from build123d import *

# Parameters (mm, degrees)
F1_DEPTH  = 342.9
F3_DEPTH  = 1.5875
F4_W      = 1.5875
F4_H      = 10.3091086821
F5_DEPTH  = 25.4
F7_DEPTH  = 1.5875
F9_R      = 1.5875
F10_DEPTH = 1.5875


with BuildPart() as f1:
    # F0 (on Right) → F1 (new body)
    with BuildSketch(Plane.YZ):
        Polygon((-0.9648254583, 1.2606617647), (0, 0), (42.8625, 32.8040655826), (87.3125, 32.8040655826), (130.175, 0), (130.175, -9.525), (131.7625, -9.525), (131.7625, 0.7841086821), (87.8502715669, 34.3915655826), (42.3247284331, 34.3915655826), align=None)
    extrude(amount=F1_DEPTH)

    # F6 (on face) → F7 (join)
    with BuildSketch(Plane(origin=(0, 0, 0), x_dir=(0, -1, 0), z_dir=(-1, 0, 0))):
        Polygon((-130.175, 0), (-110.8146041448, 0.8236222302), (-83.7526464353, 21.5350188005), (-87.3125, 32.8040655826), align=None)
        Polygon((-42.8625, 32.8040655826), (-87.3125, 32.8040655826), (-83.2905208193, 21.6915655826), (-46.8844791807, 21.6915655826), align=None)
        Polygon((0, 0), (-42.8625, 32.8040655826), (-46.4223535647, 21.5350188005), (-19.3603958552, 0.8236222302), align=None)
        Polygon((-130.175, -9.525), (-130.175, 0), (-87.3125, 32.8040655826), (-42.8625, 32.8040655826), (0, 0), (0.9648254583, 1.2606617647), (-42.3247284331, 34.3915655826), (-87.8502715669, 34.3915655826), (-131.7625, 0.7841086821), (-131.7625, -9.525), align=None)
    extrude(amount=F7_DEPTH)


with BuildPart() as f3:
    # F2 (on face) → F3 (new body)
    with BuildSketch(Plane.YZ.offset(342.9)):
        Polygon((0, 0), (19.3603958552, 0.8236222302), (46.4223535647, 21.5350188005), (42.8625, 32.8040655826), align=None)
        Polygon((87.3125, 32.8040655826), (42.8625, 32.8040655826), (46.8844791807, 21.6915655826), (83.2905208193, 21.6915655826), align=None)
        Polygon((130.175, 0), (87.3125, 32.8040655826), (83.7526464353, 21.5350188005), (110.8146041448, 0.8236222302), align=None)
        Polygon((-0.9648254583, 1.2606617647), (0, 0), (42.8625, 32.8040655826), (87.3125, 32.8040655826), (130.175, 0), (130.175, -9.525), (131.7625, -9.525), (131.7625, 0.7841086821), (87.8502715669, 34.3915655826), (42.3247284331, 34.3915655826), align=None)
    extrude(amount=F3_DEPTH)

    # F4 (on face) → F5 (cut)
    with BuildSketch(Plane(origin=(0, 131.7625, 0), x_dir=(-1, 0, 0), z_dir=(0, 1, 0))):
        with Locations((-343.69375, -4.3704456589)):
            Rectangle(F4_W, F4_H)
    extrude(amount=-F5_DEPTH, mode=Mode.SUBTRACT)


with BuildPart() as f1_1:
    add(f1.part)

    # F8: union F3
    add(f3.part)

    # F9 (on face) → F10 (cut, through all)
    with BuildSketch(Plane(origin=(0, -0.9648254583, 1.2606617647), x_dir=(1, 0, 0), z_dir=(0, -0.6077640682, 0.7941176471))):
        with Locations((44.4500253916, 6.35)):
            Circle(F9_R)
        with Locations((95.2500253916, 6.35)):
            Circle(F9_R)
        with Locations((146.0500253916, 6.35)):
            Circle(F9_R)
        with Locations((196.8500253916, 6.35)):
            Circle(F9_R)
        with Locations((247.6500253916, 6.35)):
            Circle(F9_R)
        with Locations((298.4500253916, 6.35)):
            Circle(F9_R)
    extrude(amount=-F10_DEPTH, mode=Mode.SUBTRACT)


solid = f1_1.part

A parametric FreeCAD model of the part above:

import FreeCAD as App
import Part
import Sketcher
Q = App.Units.Quantity

doc = App.newDocument("Part")
body = doc.addObject("PartDesign::Body", "Body")

sketch1 = body.newObject("Sketcher::SketchObject", "Sketch")
sketch1.AttachmentSupport = (doc.getObject("YZ_Plane"), [""])
sketch1.MapMode = "FlatFace"
sketch1.addGeometry(Part.LineSegment(App.Vector(-1, 1.3, 0), App.Vector(0, 0, 0)), False)
sketch1.addGeometry(Part.LineSegment(App.Vector(0, 0, 0), App.Vector(42.9, 32.8, 0)), False)
sketch1.addGeometry(Part.LineSegment(App.Vector(42.9, 32.8, 0), App.Vector(87.3, 32.8, 0)), False)
sketch1.addGeometry(Part.LineSegment(App.Vector(87.3, 32.8, 0), App.Vector(130.2, 0, 0)), False)
sketch1.addGeometry(Part.LineSegment(App.Vector(130.2, 0, 0), App.Vector(130.2, -9.5, 0)), False)
sketch1.addGeometry(Part.LineSegment(App.Vector(130.2, -9.5, 0), App.Vector(131.8, -9.5, 0)), False)
sketch1.addGeometry(Part.LineSegment(App.Vector(131.8, -9.5, 0), App.Vector(131.8, 0.8, 0)), False)
sketch1.addGeometry(Part.LineSegment(App.Vector(131.8, 0.8, 0), App.Vector(87.9, 34.4, 0)), False)
sketch1.addGeometry(Part.LineSegment(App.Vector(87.9, 34.4, 0), App.Vector(42.3, 34.4, 0)), False)
sketch1.addGeometry(Part.LineSegment(App.Vector(42.3, 34.4, 0), App.Vector(-1, 1.3, 0)), False)
sketch1.addConstraint(Sketcher.Constraint("Coincident", 0, 2, 1, 1))
sketch1.addConstraint(Sketcher.Constraint("Coincident", 1, 2, 2, 1))
sketch1.addConstraint(Sketcher.Constraint("Coincident", 2, 2, 3, 1))
sketch1.addConstraint(Sketcher.Constraint("Coincident", 3, 2, 4, 1))
sketch1.addConstraint(Sketcher.Constraint("Coincident", 4, 2, 5, 1))
sketch1.addConstraint(Sketcher.Constraint("Coincident", 5, 2, 6, 1))
sketch1.addConstraint(Sketcher.Constraint("Coincident", 6, 2, 7, 1))
sketch1.addConstraint(Sketcher.Constraint("Coincident", 7, 2, 8, 1))
sketch1.addConstraint(Sketcher.Constraint("Coincident", 8, 2, 9, 1))
sketch1.addConstraint(Sketcher.Constraint("Coincident", 9, 2, 0, 1))
sketch1.addConstraint(Sketcher.Constraint("Horizontal", 2))
sketch1.addConstraint(Sketcher.Constraint("Vertical", 4))
sketch1.addConstraint(Sketcher.Constraint("Horizontal", 5))
sketch1.addConstraint(Sketcher.Constraint("Vertical", 6))
sketch1.addConstraint(Sketcher.Constraint("Horizontal", 8))
sketch1.addConstraint(Sketcher.Constraint("Coincident", 0, 2, -1, 1))
sketch1.addConstraint(Sketcher.Constraint("PointOnObject", 3, 2, -1))
sketch1.addConstraint(Sketcher.Constraint("Perpendicular", 0, 1))
sketch1.addConstraint(Sketcher.Constraint("Parallel", 3, 7))
sketch1.addConstraint(Sketcher.Constraint("Parallel", 1, 9))
sketch1.addConstraint(Sketcher.Constraint("Equal", 1, 3))
sketch1.addConstraint(Sketcher.Constraint("DistanceX", 2, 1, 2, 2, Q("1.75 in")))
sketch1.addConstraint(Sketcher.Constraint("DistanceX", 1, 2, 5, 2, Q("3.5 in")))
sketch1.addConstraint(Sketcher.Constraint("DistanceX", 5, 1, 5, 2, Q("0.0625 in")))
sketch1.addConstraint(Sketcher.Constraint("DistanceY", 4, 2, 4, 1, Q("0.375 in")))
sketch1.addConstraint(Sketcher.Constraint("Distance", 0, Q("0.0625 in")))
sketch1.addConstraint(Sketcher.Constraint("Distance", 1, Q("2.125 in")))
sketch1.addConstraint(Sketcher.Constraint("DistanceY", 2, 2, 7, 2, Q("0.0625 in")))
sketch1.addConstraint(Sketcher.Constraint("DistanceY", 6, 1, 6, 2, Q("10.309109 mm")))
pad1 = body.newObject("PartDesign::Pad", "Pad")
pad1.Profile = sketch1
pad1.Length = Q("13.5 in")

sketch2 = body.newObject("Sketcher::SketchObject", "Sketch001")
sketch2.AttachmentSupport = (doc.getObject("YZ_Plane"), [""])
sketch2.MapMode = "FlatFace"
sketch2.addGeometry(Part.LineSegment(App.Vector(130.2, 0, 0), App.Vector(110.8, 0.8, 0)), False)
sketch2.addGeometry(Part.LineSegment(App.Vector(110.8, 0.8, 0), App.Vector(83.8, 21.5, 0)), False)
sketch2.addGeometry(Part.LineSegment(App.Vector(83.8, 21.5, 0), App.Vector(87.3, 32.8, 0)), False)
sketch2.addGeometry(Part.LineSegment(App.Vector(87.3, 32.8, 0), App.Vector(83.3, 21.7, 0)), False)
sketch2.addGeometry(Part.LineSegment(App.Vector(83.3, 21.7, 0), App.Vector(46.9, 21.7, 0)), False)
sketch2.addGeometry(Part.LineSegment(App.Vector(46.9, 21.7, 0), App.Vector(42.9, 32.8, 0)), False)
sketch2.addGeometry(Part.LineSegment(App.Vector(42.9, 32.8, 0), App.Vector(46.4, 21.5, 0)), False)
sketch2.addGeometry(Part.LineSegment(App.Vector(46.4, 21.5, 0), App.Vector(19.4, 0.8, 0)), False)
sketch2.addGeometry(Part.LineSegment(App.Vector(19.4, 0.8, 0), App.Vector(0, 0, 0)), False)
sketch2.addGeometry(Part.LineSegment(App.Vector(0, 0, 0), App.Vector(-1, 1.3, 0)), False)
sketch2.addGeometry(Part.LineSegment(App.Vector(-1, 1.3, 0), App.Vector(42.3, 34.4, 0)), False)
sketch2.addGeometry(Part.LineSegment(App.Vector(42.3, 34.4, 0), App.Vector(87.9, 34.4, 0)), False)
sketch2.addGeometry(Part.LineSegment(App.Vector(87.9, 34.4, 0), App.Vector(131.8, 0.8, 0)), False)
sketch2.addGeometry(Part.LineSegment(App.Vector(131.8, 0.8, 0), App.Vector(131.8, -9.5, 0)), False)
sketch2.addGeometry(Part.LineSegment(App.Vector(131.8, -9.5, 0), App.Vector(130.2, -9.5, 0)), False)
sketch2.addGeometry(Part.LineSegment(App.Vector(130.2, -9.5, 0), App.Vector(130.2, 0, 0)), False)
sketch2.addConstraint(Sketcher.Constraint("Coincident", 0, 2, 1, 1))
sketch2.addConstraint(Sketcher.Constraint("Coincident", 1, 2, 2, 1))
sketch2.addConstraint(Sketcher.Constraint("Coincident", 2, 2, 3, 1))
sketch2.addConstraint(Sketcher.Constraint("Coincident", 3, 2, 4, 1))
sketch2.addConstraint(Sketcher.Constraint("Coincident", 4, 2, 5, 1))
sketch2.addConstraint(Sketcher.Constraint("Coincident", 5, 2, 6, 1))
sketch2.addConstraint(Sketcher.Constraint("Coincident", 6, 2, 7, 1))
sketch2.addConstraint(Sketcher.Constraint("Coincident", 7, 2, 8, 1))
sketch2.addConstraint(Sketcher.Constraint("Coincident", 8, 2, 9, 1))
sketch2.addConstraint(Sketcher.Constraint("Coincident", 9, 2, 10, 1))
sketch2.addConstraint(Sketcher.Constraint("Coincident", 10, 2, 11, 1))
sketch2.addConstraint(Sketcher.Constraint("Coincident", 11, 2, 12, 1))
sketch2.addConstraint(Sketcher.Constraint("Coincident", 12, 2, 13, 1))
sketch2.addConstraint(Sketcher.Constraint("Coincident", 13, 2, 14, 1))
sketch2.addConstraint(Sketcher.Constraint("Coincident", 14, 2, 15, 1))
sketch2.addConstraint(Sketcher.Constraint("Coincident", 15, 2, 0, 1))
sketch2.addConstraint(Sketcher.Constraint("Horizontal", 4))
sketch2.addConstraint(Sketcher.Constraint("Horizontal", 11))
sketch2.addConstraint(Sketcher.Constraint("Vertical", 13))
sketch2.addConstraint(Sketcher.Constraint("Horizontal", 14))
sketch2.addConstraint(Sketcher.Constraint("Vertical", 15))
sketch2.addConstraint(Sketcher.Constraint("Coincident", 8, 2, -1, 1))
sketch2.addConstraint(Sketcher.Constraint("PointOnObject", 15, 2, -1))
sketch2.addConstraint(Sketcher.Constraint("Perpendicular", 7, 9))
sketch2.addConstraint(Sketcher.Constraint("Perpendicular", 9, 10))
sketch2.addConstraint(Sketcher.Constraint("Parallel", 1, 12))
sketch2.addConstraint(Sketcher.Constraint("Horizontal", 2, 2, 5, 2))
sketch2.addConstraint(Sketcher.Constraint("Horizontal", 1, 2, 6, 2))
sketch2.addConstraint(Sketcher.Constraint("Horizontal", 0, 2, 7, 2))
sketch2.addConstraint(Sketcher.Constraint("Equal", 2, 3))
sketch2.addConstraint(Sketcher.Constraint("Equal", 3, 5))
sketch2.addConstraint(Sketcher.Constraint("Equal", 5, 6))
sketch2.addConstraint(Sketcher.Constraint("Equal", 1, 7))
sketch2.addConstraint(Sketcher.Constraint("Equal", 0, 8))
sketch2.addConstraint(Sketcher.Constraint("DistanceY", 4, 2, 10, 2, Q("0.5 in")))
sketch2.addConstraint(Sketcher.Constraint("DistanceX", 14, 2, 14, 1, Q("0.0625 in")))
sketch2.addConstraint(Sketcher.Constraint("DistanceY", 15, 1, 15, 2, Q("0.375 in")))
sketch2.addConstraint(Sketcher.Constraint("DistanceX", 5, 2, 2, 2, Q("1.75 in")))
sketch2.addConstraint(Sketcher.Constraint("DistanceX", 2, 2, 12, 2, Q("1.75 in")))
sketch2.addConstraint(Sketcher.Constraint("Distance", 9, Q("0.0625 in")))
sketch2.addConstraint(Sketcher.Constraint("DistanceY", 3, 2, 2, 2, Q("0.4375 in")))
sketch2.addConstraint(Sketcher.Constraint("DistanceX", 4, 2, 4, 1, Q("36.406042 mm")))
sketch2.addConstraint(Sketcher.Constraint("DistanceY", 13, 2, 13, 1, Q("10.309109 mm")))
sketch2.addConstraint(Sketcher.Constraint("Distance", 1, Q("34.078021 mm")))
sketch2.addConstraint(Sketcher.Constraint("Distance", 10, Q("54.512772 mm")))
sketch2.addConstraint(Sketcher.Constraint("Distance", 12, Q("55.29688 mm")))
sketch2.addConstraint(Sketcher.Constraint("DistanceY", -1, 1, 1, 2, Q("21.535019 mm")))
pad2 = body.newObject("PartDesign::Pad", "Pad001")
pad2.Profile = sketch2
pad2.Length = Q("0.0625 in")
pad2.Reversed = True
body2 = doc.addObject("PartDesign::Body", "Body001")

sketch3 = body2.newObject("Sketcher::SketchObject", "Sketch002")
sketch3.AttachmentSupport = (doc.getObject("YZ_Plane001"), [""])
sketch3.MapMode = "FlatFace"
sketch3.AttachmentOffset = App.Placement(App.Vector(0, 0, 13.5 * 25.4), App.Rotation())
sketch3.addGeometry(Part.LineSegment(App.Vector(0, 0, 0), App.Vector(19.4, 0.8, 0)), False)
sketch3.addGeometry(Part.LineSegment(App.Vector(19.4, 0.8, 0), App.Vector(46.4, 21.5, 0)), False)
sketch3.addGeometry(Part.LineSegment(App.Vector(46.4, 21.5, 0), App.Vector(42.9, 32.8, 0)), False)
sketch3.addGeometry(Part.LineSegment(App.Vector(42.9, 32.8, 0), App.Vector(46.9, 21.7, 0)), False)
sketch3.addGeometry(Part.LineSegment(App.Vector(46.9, 21.7, 0), App.Vector(83.3, 21.7, 0)), False)
sketch3.addGeometry(Part.LineSegment(App.Vector(83.3, 21.7, 0), App.Vector(87.3, 32.8, 0)), False)
sketch3.addGeometry(Part.LineSegment(App.Vector(87.3, 32.8, 0), App.Vector(83.8, 21.5, 0)), False)
sketch3.addGeometry(Part.LineSegment(App.Vector(83.8, 21.5, 0), App.Vector(110.8, 0.8, 0)), False)
sketch3.addGeometry(Part.LineSegment(App.Vector(110.8, 0.8, 0), App.Vector(130.2, 0, 0)), False)
sketch3.addGeometry(Part.LineSegment(App.Vector(130.2, 0, 0), App.Vector(130.2, -9.5, 0)), False)
sketch3.addGeometry(Part.LineSegment(App.Vector(130.2, -9.5, 0), App.Vector(131.8, -9.5, 0)), False)
sketch3.addGeometry(Part.LineSegment(App.Vector(131.8, -9.5, 0), App.Vector(131.8, 0.8, 0)), False)
sketch3.addGeometry(Part.LineSegment(App.Vector(131.8, 0.8, 0), App.Vector(87.9, 34.4, 0)), False)
sketch3.addGeometry(Part.LineSegment(App.Vector(87.9, 34.4, 0), App.Vector(42.3, 34.4, 0)), False)
sketch3.addGeometry(Part.LineSegment(App.Vector(42.3, 34.4, 0), App.Vector(-1, 1.3, 0)), False)
sketch3.addGeometry(Part.LineSegment(App.Vector(-1, 1.3, 0), App.Vector(0, 0, 0)), False)
sketch3.addConstraint(Sketcher.Constraint("Coincident", 0, 2, 1, 1))
sketch3.addConstraint(Sketcher.Constraint("Coincident", 1, 2, 2, 1))
sketch3.addConstraint(Sketcher.Constraint("Coincident", 2, 2, 3, 1))
sketch3.addConstraint(Sketcher.Constraint("Coincident", 3, 2, 4, 1))
sketch3.addConstraint(Sketcher.Constraint("Coincident", 4, 2, 5, 1))
sketch3.addConstraint(Sketcher.Constraint("Coincident", 5, 2, 6, 1))
sketch3.addConstraint(Sketcher.Constraint("Coincident", 6, 2, 7, 1))
sketch3.addConstraint(Sketcher.Constraint("Coincident", 7, 2, 8, 1))
sketch3.addConstraint(Sketcher.Constraint("Coincident", 8, 2, 9, 1))
sketch3.addConstraint(Sketcher.Constraint("Coincident", 9, 2, 10, 1))
sketch3.addConstraint(Sketcher.Constraint("Coincident", 10, 2, 11, 1))
sketch3.addConstraint(Sketcher.Constraint("Coincident", 11, 2, 12, 1))
sketch3.addConstraint(Sketcher.Constraint("Coincident", 12, 2, 13, 1))
sketch3.addConstraint(Sketcher.Constraint("Coincident", 13, 2, 14, 1))
sketch3.addConstraint(Sketcher.Constraint("Coincident", 14, 2, 15, 1))
sketch3.addConstraint(Sketcher.Constraint("Coincident", 15, 2, 0, 1))
sketch3.addConstraint(Sketcher.Constraint("Horizontal", 4))
sketch3.addConstraint(Sketcher.Constraint("Vertical", 9))
sketch3.addConstraint(Sketcher.Constraint("Horizontal", 10))
sketch3.addConstraint(Sketcher.Constraint("Vertical", 11))
sketch3.addConstraint(Sketcher.Constraint("Horizontal", 13))
sketch3.addConstraint(Sketcher.Constraint("Coincident", 15, 2, -1, 1))
sketch3.addConstraint(Sketcher.Constraint("PointOnObject", 8, 2, -1))
sketch3.addConstraint(Sketcher.Constraint("Parallel", 7, 12))
sketch3.addConstraint(Sketcher.Constraint("Parallel", 1, 14))
sketch3.addConstraint(Sketcher.Constraint("Perpendicular", 14, 15))
sketch3.addConstraint(Sketcher.Constraint("Horizontal", 2, 2, 5, 2))
sketch3.addConstraint(Sketcher.Constraint("Horizontal", 1, 2, 6, 2))
sketch3.addConstraint(Sketcher.Constraint("Horizontal", 0, 2, 7, 2))
sketch3.addConstraint(Sketcher.Constraint("Equal", 2, 3))
sketch3.addConstraint(Sketcher.Constraint("Equal", 3, 5))
sketch3.addConstraint(Sketcher.Constraint("Equal", 5, 6))
sketch3.addConstraint(Sketcher.Constraint("Equal", 1, 7))
sketch3.addConstraint(Sketcher.Constraint("Equal", 0, 8))
sketch3.addConstraint(Sketcher.Constraint("DistanceY", 4, 2, 12, 2, Q("0.5 in")))
sketch3.addConstraint(Sketcher.Constraint("DistanceX", 10, 1, 10, 2, Q("0.0625 in")))
sketch3.addConstraint(Sketcher.Constraint("DistanceY", 9, 2, 9, 1, Q("0.375 in")))
sketch3.addConstraint(Sketcher.Constraint("DistanceX", 2, 2, 5, 2, Q("1.75 in")))
sketch3.addConstraint(Sketcher.Constraint("Distance", 15, Q("0.0625 in")))
sketch3.addConstraint(Sketcher.Constraint("DistanceX", -1, 1, 2, 2, Q("1.6875 in")))
sketch3.addConstraint(Sketcher.Constraint("DistanceY", 3, 2, 2, 2, Q("0.4375 in")))
sketch3.addConstraint(Sketcher.Constraint("DistanceX", 4, 1, 4, 2, Q("36.406042 mm")))
sketch3.addConstraint(Sketcher.Constraint("DistanceY", 11, 1, 11, 2, Q("10.309109 mm")))
sketch3.addConstraint(Sketcher.Constraint("Distance", 1, Q("34.078021 mm")))
sketch3.addConstraint(Sketcher.Constraint("Distance", 12, Q("55.29688 mm")))
sketch3.addConstraint(Sketcher.Constraint("Distance", 14, Q("54.512772 mm")))
sketch3.addConstraint(Sketcher.Constraint("DistanceY", -1, 1, 1, 2, Q("21.535019 mm")))
pad3 = body2.newObject("PartDesign::Pad", "Pad002")
pad3.Profile = sketch3
pad3.Length = Q("0.0625 in")

sketch4 = body2.newObject("Sketcher::SketchObject", "Sketch003")
sketch4.AttachmentSupport = (doc.getObject("XZ_Plane001"), [""])
sketch4.MapMode = "FlatFace"
sketch4.AttachmentOffset = App.Placement(App.Vector(0, 0, -5.1875 * 25.4), App.Rotation())
sketch4.addGeometry(Part.LineSegment(App.Vector(344.5, 0.8, 0), App.Vector(344.5, -9.5, 0)), False)
sketch4.addGeometry(Part.LineSegment(App.Vector(344.5, -9.5, 0), App.Vector(342.9, -9.5, 0)), False)
sketch4.addGeometry(Part.LineSegment(App.Vector(342.9, -9.5, 0), App.Vector(342.9, 0.8, 0)), False)
sketch4.addGeometry(Part.LineSegment(App.Vector(342.9, 0.8, 0), App.Vector(344.5, 0.8, 0)), False)
sketch4.addConstraint(Sketcher.Constraint("Coincident", 0, 2, 1, 1))
sketch4.addConstraint(Sketcher.Constraint("Coincident", 1, 2, 2, 1))
sketch4.addConstraint(Sketcher.Constraint("Coincident", 2, 2, 3, 1))
sketch4.addConstraint(Sketcher.Constraint("Coincident", 3, 2, 0, 1))
sketch4.addConstraint(Sketcher.Constraint("Vertical", 0))
sketch4.addConstraint(Sketcher.Constraint("Horizontal", 1))
sketch4.addConstraint(Sketcher.Constraint("Vertical", 2))
sketch4.addConstraint(Sketcher.Constraint("Horizontal", 3))
sketch4.addConstraint(Sketcher.Constraint("DistanceX", -1, 1, 1, 2, Q("13.5 in")))
sketch4.addConstraint(Sketcher.Constraint("DistanceX", 1, 2, 1, 1, Q("0.0625 in")))
sketch4.addConstraint(Sketcher.Constraint("DistanceY", 0, 2, -1, 1, Q("0.375 in")))
sketch4.addConstraint(Sketcher.Constraint("DistanceY", 0, 2, 0, 1, Q("10.309109 mm")))
pocket1 = body2.newObject("PartDesign::Pocket", "Pocket")
pocket1.Profile = sketch4
pocket1.Length = Q("1 in")
pocket1.Reversed = True
doc.recompute()

boolean = body.newObject("PartDesign::Boolean", "Boolean")
boolean.Type = "Fuse"
boolean.addObjects([body2])

sketch5 = body.newObject("Sketcher::SketchObject", "Sketch004")
sketch5.Placement = App.Placement(App.Vector(0, -0.964825, 1.260662), App.Rotation(App.Vector(1, 0, 0), App.Vector(0, 0.794117647, 0.607764068), App.Vector(0, -0.607764068, 0.794117647), "ZXY"))
sketch5.addGeometry(Part.Circle(App.Vector(44.5, 6.3, 0), App.Vector(0, 0, 1), 1.6), False)
sketch5.addGeometry(Part.Circle(App.Vector(95.3, 6.3, 0), App.Vector(0, 0, 1), 1.6), False)
sketch5.addGeometry(Part.Circle(App.Vector(146.1, 6.3, 0), App.Vector(0, 0, 1), 1.6), False)
sketch5.addGeometry(Part.Circle(App.Vector(196.9, 6.3, 0), App.Vector(0, 0, 1), 1.6), False)
sketch5.addGeometry(Part.Circle(App.Vector(247.7, 6.3, 0), App.Vector(0, 0, 1), 1.6), False)
sketch5.addGeometry(Part.Circle(App.Vector(298.5, 6.3, 0), App.Vector(0, 0, 1), 1.6), False)
sketch5.addConstraint(Sketcher.Constraint("Equal", 0, 1))
sketch5.addConstraint(Sketcher.Constraint("Equal", 1, 2))
sketch5.addConstraint(Sketcher.Constraint("Equal", 2, 3))
sketch5.addConstraint(Sketcher.Constraint("Equal", 3, 4))
sketch5.addConstraint(Sketcher.Constraint("Equal", 4, 5))
sketch5.addConstraint(Sketcher.Constraint("Horizontal", 0, 3, 1, 3))
sketch5.addConstraint(Sketcher.Constraint("Horizontal", 1, 3, 2, 3))
sketch5.addConstraint(Sketcher.Constraint("Horizontal", 2, 3, 3, 3))
sketch5.addConstraint(Sketcher.Constraint("Horizontal", 3, 3, 4, 3))
sketch5.addConstraint(Sketcher.Constraint("Horizontal", 4, 3, 5, 3))
sketch5.addConstraint(Sketcher.Constraint("Diameter", 0, Q("0.125 in")))
sketch5.addConstraint(Sketcher.Constraint("DistanceX", 0, 3, 1, 3, Q("2 in")))
sketch5.addConstraint(Sketcher.Constraint("DistanceX", 1, 3, 2, 3, Q("2 in")))
sketch5.addConstraint(Sketcher.Constraint("DistanceX", 2, 3, 3, 3, Q("2 in")))
sketch5.addConstraint(Sketcher.Constraint("DistanceX", 3, 3, 4, 3, Q("2 in")))
sketch5.addConstraint(Sketcher.Constraint("DistanceX", 4, 3, 5, 3, Q("2 in")))
sketch5.addConstraint(Sketcher.Constraint("DistanceY", -1, 1, 0, 3, Q("0.25 in")))
sketch5.addConstraint(Sketcher.Constraint("DistanceX", -1, 1, 0, 3, Q("44.450025 mm")))
pocket2 = body.newObject("PartDesign::Pocket", "Pocket001")
pocket2.Profile = sketch5
pocket2.Type = "ThroughAll"

doc.recompute()
